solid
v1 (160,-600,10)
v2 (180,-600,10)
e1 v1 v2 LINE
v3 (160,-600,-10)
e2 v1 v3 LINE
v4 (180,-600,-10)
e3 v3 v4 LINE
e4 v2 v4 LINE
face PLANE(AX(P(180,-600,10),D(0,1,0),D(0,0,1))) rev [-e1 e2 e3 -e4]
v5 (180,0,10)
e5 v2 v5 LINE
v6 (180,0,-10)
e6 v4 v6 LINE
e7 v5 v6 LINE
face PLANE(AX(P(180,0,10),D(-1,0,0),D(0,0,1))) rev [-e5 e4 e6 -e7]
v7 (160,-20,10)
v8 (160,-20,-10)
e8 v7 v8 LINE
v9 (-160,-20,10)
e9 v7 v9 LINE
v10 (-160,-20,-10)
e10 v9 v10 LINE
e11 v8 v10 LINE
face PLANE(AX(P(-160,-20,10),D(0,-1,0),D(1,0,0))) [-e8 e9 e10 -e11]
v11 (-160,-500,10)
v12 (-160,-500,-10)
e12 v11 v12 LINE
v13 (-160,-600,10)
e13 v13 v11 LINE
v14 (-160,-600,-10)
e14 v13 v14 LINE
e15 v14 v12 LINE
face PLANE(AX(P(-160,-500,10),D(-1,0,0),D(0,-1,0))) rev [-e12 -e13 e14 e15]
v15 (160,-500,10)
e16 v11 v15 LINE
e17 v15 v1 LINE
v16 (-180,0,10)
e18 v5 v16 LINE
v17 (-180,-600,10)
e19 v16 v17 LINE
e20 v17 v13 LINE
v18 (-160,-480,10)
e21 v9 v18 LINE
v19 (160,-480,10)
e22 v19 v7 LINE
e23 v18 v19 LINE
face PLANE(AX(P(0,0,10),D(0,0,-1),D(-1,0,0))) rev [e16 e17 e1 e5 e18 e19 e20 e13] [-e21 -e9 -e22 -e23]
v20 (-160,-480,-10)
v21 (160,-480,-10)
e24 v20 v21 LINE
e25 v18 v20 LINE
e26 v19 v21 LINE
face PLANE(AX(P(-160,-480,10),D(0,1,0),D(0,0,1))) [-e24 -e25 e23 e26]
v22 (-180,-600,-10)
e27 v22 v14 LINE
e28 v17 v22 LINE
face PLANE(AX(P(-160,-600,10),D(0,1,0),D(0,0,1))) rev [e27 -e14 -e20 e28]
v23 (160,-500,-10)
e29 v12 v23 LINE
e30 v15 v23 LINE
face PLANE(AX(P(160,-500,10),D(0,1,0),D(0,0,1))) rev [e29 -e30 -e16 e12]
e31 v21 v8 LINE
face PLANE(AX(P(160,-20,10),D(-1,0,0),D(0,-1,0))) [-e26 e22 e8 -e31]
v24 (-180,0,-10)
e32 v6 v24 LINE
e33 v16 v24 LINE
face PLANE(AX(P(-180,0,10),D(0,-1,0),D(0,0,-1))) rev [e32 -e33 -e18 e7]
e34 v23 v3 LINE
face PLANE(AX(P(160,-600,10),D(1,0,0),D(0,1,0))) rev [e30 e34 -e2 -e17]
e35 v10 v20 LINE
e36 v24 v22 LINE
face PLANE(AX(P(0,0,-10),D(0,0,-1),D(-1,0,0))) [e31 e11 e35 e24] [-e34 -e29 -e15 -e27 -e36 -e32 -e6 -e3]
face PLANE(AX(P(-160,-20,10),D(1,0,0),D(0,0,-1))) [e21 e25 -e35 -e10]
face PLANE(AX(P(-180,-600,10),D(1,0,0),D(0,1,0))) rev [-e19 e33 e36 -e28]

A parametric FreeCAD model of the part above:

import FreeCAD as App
import Part
import Sketcher
from FreeCAD import Vector
Q = App.Units.Quantity


def add_polygon(sketch, points):
    """Adds a closed chain of lines whose ends are joined by coincident constraints."""
    first, n = sketch.GeometryCount, len(points)
    for a, b in zip(points, points[1:] + points[:1]):
        sketch.addGeometry(Part.LineSegment(App.Vector(*a, 0), App.Vector(*b, 0)), False)
    for i in range(n):
        sketch.addConstraint(Sketcher.Constraint("Coincident", first + i, 2, first + (i + 1) % n, 1))

doc = App.newDocument("Part")
body = doc.addObject("PartDesign::Body", "Body")

# Sketch on XY plane
sketch1 = doc.addObject("Sketcher::SketchObject", "Sketch")
body.addObject(sketch1)
sketch1.AttachmentSupport = (doc.XY_Plane, [""])
sketch1.MapMode = "FlatFace"
add_polygon(sketch1, [(-180, 0), (-180, -600), (-160, -600), (-160, -500), (160, -500), (160, -600), (180, -600), (180, 0)])  # lines 0-7
add_polygon(sketch1, [(-160, -480), (-160, -20), (160, -20), (160, -480)])  # lines 8-11
sketch1.addConstraint([
    Sketcher.Constraint("Vertical", 0),
    Sketcher.Constraint("Horizontal", 1),
    Sketcher.Constraint("Vertical", 2),
    Sketcher.Constraint("Horizontal", 3),
    Sketcher.Constraint("Vertical", 4),
    Sketcher.Constraint("Horizontal", 5),
    Sketcher.Constraint("Vertical", 6),
    Sketcher.Constraint("Horizontal", 7),
    Sketcher.Constraint("Vertical", 8),
    Sketcher.Constraint("Horizontal", 9),
    Sketcher.Constraint("Vertical", 10),
    Sketcher.Constraint("Horizontal", 11),
    Sketcher.Constraint("Symmetric", 6, 2, 7, 2, -1, 1),
    Sketcher.Constraint("Symmetric", 1, 2, 4, 2, -2),
    Sketcher.Constraint("Vertical", 2, 2, 8, 2),
    Sketcher.Constraint("Vertical", 4, 2, 9, 2),
    Sketcher.Constraint("DistanceX", 1, 1, 1, 2, Q("20 mm")),
    Sketcher.Constraint("DistanceX", 3, 1, 3, 2, Q("320 mm")),
    Sketcher.Constraint("DistanceY", 0, 2, 0, 1, Q("600 mm")),
    Sketcher.Constraint("DistanceY", 2, 1, 2, 2, Q("100 mm")),
    Sketcher.Constraint("DistanceY", 8, 1, 8, 2, Q("460 mm")),
    Sketcher.Constraint("DistanceY", 8, 2, -1, 1, Q("20 mm")),
])
pad1 = doc.addObject("PartDesign::Pad", "Pad")
body.addObject(pad1)
pad1.Profile = sketch1
pad1.Length = 20
pad1.Midplane = True

doc.recompute()
